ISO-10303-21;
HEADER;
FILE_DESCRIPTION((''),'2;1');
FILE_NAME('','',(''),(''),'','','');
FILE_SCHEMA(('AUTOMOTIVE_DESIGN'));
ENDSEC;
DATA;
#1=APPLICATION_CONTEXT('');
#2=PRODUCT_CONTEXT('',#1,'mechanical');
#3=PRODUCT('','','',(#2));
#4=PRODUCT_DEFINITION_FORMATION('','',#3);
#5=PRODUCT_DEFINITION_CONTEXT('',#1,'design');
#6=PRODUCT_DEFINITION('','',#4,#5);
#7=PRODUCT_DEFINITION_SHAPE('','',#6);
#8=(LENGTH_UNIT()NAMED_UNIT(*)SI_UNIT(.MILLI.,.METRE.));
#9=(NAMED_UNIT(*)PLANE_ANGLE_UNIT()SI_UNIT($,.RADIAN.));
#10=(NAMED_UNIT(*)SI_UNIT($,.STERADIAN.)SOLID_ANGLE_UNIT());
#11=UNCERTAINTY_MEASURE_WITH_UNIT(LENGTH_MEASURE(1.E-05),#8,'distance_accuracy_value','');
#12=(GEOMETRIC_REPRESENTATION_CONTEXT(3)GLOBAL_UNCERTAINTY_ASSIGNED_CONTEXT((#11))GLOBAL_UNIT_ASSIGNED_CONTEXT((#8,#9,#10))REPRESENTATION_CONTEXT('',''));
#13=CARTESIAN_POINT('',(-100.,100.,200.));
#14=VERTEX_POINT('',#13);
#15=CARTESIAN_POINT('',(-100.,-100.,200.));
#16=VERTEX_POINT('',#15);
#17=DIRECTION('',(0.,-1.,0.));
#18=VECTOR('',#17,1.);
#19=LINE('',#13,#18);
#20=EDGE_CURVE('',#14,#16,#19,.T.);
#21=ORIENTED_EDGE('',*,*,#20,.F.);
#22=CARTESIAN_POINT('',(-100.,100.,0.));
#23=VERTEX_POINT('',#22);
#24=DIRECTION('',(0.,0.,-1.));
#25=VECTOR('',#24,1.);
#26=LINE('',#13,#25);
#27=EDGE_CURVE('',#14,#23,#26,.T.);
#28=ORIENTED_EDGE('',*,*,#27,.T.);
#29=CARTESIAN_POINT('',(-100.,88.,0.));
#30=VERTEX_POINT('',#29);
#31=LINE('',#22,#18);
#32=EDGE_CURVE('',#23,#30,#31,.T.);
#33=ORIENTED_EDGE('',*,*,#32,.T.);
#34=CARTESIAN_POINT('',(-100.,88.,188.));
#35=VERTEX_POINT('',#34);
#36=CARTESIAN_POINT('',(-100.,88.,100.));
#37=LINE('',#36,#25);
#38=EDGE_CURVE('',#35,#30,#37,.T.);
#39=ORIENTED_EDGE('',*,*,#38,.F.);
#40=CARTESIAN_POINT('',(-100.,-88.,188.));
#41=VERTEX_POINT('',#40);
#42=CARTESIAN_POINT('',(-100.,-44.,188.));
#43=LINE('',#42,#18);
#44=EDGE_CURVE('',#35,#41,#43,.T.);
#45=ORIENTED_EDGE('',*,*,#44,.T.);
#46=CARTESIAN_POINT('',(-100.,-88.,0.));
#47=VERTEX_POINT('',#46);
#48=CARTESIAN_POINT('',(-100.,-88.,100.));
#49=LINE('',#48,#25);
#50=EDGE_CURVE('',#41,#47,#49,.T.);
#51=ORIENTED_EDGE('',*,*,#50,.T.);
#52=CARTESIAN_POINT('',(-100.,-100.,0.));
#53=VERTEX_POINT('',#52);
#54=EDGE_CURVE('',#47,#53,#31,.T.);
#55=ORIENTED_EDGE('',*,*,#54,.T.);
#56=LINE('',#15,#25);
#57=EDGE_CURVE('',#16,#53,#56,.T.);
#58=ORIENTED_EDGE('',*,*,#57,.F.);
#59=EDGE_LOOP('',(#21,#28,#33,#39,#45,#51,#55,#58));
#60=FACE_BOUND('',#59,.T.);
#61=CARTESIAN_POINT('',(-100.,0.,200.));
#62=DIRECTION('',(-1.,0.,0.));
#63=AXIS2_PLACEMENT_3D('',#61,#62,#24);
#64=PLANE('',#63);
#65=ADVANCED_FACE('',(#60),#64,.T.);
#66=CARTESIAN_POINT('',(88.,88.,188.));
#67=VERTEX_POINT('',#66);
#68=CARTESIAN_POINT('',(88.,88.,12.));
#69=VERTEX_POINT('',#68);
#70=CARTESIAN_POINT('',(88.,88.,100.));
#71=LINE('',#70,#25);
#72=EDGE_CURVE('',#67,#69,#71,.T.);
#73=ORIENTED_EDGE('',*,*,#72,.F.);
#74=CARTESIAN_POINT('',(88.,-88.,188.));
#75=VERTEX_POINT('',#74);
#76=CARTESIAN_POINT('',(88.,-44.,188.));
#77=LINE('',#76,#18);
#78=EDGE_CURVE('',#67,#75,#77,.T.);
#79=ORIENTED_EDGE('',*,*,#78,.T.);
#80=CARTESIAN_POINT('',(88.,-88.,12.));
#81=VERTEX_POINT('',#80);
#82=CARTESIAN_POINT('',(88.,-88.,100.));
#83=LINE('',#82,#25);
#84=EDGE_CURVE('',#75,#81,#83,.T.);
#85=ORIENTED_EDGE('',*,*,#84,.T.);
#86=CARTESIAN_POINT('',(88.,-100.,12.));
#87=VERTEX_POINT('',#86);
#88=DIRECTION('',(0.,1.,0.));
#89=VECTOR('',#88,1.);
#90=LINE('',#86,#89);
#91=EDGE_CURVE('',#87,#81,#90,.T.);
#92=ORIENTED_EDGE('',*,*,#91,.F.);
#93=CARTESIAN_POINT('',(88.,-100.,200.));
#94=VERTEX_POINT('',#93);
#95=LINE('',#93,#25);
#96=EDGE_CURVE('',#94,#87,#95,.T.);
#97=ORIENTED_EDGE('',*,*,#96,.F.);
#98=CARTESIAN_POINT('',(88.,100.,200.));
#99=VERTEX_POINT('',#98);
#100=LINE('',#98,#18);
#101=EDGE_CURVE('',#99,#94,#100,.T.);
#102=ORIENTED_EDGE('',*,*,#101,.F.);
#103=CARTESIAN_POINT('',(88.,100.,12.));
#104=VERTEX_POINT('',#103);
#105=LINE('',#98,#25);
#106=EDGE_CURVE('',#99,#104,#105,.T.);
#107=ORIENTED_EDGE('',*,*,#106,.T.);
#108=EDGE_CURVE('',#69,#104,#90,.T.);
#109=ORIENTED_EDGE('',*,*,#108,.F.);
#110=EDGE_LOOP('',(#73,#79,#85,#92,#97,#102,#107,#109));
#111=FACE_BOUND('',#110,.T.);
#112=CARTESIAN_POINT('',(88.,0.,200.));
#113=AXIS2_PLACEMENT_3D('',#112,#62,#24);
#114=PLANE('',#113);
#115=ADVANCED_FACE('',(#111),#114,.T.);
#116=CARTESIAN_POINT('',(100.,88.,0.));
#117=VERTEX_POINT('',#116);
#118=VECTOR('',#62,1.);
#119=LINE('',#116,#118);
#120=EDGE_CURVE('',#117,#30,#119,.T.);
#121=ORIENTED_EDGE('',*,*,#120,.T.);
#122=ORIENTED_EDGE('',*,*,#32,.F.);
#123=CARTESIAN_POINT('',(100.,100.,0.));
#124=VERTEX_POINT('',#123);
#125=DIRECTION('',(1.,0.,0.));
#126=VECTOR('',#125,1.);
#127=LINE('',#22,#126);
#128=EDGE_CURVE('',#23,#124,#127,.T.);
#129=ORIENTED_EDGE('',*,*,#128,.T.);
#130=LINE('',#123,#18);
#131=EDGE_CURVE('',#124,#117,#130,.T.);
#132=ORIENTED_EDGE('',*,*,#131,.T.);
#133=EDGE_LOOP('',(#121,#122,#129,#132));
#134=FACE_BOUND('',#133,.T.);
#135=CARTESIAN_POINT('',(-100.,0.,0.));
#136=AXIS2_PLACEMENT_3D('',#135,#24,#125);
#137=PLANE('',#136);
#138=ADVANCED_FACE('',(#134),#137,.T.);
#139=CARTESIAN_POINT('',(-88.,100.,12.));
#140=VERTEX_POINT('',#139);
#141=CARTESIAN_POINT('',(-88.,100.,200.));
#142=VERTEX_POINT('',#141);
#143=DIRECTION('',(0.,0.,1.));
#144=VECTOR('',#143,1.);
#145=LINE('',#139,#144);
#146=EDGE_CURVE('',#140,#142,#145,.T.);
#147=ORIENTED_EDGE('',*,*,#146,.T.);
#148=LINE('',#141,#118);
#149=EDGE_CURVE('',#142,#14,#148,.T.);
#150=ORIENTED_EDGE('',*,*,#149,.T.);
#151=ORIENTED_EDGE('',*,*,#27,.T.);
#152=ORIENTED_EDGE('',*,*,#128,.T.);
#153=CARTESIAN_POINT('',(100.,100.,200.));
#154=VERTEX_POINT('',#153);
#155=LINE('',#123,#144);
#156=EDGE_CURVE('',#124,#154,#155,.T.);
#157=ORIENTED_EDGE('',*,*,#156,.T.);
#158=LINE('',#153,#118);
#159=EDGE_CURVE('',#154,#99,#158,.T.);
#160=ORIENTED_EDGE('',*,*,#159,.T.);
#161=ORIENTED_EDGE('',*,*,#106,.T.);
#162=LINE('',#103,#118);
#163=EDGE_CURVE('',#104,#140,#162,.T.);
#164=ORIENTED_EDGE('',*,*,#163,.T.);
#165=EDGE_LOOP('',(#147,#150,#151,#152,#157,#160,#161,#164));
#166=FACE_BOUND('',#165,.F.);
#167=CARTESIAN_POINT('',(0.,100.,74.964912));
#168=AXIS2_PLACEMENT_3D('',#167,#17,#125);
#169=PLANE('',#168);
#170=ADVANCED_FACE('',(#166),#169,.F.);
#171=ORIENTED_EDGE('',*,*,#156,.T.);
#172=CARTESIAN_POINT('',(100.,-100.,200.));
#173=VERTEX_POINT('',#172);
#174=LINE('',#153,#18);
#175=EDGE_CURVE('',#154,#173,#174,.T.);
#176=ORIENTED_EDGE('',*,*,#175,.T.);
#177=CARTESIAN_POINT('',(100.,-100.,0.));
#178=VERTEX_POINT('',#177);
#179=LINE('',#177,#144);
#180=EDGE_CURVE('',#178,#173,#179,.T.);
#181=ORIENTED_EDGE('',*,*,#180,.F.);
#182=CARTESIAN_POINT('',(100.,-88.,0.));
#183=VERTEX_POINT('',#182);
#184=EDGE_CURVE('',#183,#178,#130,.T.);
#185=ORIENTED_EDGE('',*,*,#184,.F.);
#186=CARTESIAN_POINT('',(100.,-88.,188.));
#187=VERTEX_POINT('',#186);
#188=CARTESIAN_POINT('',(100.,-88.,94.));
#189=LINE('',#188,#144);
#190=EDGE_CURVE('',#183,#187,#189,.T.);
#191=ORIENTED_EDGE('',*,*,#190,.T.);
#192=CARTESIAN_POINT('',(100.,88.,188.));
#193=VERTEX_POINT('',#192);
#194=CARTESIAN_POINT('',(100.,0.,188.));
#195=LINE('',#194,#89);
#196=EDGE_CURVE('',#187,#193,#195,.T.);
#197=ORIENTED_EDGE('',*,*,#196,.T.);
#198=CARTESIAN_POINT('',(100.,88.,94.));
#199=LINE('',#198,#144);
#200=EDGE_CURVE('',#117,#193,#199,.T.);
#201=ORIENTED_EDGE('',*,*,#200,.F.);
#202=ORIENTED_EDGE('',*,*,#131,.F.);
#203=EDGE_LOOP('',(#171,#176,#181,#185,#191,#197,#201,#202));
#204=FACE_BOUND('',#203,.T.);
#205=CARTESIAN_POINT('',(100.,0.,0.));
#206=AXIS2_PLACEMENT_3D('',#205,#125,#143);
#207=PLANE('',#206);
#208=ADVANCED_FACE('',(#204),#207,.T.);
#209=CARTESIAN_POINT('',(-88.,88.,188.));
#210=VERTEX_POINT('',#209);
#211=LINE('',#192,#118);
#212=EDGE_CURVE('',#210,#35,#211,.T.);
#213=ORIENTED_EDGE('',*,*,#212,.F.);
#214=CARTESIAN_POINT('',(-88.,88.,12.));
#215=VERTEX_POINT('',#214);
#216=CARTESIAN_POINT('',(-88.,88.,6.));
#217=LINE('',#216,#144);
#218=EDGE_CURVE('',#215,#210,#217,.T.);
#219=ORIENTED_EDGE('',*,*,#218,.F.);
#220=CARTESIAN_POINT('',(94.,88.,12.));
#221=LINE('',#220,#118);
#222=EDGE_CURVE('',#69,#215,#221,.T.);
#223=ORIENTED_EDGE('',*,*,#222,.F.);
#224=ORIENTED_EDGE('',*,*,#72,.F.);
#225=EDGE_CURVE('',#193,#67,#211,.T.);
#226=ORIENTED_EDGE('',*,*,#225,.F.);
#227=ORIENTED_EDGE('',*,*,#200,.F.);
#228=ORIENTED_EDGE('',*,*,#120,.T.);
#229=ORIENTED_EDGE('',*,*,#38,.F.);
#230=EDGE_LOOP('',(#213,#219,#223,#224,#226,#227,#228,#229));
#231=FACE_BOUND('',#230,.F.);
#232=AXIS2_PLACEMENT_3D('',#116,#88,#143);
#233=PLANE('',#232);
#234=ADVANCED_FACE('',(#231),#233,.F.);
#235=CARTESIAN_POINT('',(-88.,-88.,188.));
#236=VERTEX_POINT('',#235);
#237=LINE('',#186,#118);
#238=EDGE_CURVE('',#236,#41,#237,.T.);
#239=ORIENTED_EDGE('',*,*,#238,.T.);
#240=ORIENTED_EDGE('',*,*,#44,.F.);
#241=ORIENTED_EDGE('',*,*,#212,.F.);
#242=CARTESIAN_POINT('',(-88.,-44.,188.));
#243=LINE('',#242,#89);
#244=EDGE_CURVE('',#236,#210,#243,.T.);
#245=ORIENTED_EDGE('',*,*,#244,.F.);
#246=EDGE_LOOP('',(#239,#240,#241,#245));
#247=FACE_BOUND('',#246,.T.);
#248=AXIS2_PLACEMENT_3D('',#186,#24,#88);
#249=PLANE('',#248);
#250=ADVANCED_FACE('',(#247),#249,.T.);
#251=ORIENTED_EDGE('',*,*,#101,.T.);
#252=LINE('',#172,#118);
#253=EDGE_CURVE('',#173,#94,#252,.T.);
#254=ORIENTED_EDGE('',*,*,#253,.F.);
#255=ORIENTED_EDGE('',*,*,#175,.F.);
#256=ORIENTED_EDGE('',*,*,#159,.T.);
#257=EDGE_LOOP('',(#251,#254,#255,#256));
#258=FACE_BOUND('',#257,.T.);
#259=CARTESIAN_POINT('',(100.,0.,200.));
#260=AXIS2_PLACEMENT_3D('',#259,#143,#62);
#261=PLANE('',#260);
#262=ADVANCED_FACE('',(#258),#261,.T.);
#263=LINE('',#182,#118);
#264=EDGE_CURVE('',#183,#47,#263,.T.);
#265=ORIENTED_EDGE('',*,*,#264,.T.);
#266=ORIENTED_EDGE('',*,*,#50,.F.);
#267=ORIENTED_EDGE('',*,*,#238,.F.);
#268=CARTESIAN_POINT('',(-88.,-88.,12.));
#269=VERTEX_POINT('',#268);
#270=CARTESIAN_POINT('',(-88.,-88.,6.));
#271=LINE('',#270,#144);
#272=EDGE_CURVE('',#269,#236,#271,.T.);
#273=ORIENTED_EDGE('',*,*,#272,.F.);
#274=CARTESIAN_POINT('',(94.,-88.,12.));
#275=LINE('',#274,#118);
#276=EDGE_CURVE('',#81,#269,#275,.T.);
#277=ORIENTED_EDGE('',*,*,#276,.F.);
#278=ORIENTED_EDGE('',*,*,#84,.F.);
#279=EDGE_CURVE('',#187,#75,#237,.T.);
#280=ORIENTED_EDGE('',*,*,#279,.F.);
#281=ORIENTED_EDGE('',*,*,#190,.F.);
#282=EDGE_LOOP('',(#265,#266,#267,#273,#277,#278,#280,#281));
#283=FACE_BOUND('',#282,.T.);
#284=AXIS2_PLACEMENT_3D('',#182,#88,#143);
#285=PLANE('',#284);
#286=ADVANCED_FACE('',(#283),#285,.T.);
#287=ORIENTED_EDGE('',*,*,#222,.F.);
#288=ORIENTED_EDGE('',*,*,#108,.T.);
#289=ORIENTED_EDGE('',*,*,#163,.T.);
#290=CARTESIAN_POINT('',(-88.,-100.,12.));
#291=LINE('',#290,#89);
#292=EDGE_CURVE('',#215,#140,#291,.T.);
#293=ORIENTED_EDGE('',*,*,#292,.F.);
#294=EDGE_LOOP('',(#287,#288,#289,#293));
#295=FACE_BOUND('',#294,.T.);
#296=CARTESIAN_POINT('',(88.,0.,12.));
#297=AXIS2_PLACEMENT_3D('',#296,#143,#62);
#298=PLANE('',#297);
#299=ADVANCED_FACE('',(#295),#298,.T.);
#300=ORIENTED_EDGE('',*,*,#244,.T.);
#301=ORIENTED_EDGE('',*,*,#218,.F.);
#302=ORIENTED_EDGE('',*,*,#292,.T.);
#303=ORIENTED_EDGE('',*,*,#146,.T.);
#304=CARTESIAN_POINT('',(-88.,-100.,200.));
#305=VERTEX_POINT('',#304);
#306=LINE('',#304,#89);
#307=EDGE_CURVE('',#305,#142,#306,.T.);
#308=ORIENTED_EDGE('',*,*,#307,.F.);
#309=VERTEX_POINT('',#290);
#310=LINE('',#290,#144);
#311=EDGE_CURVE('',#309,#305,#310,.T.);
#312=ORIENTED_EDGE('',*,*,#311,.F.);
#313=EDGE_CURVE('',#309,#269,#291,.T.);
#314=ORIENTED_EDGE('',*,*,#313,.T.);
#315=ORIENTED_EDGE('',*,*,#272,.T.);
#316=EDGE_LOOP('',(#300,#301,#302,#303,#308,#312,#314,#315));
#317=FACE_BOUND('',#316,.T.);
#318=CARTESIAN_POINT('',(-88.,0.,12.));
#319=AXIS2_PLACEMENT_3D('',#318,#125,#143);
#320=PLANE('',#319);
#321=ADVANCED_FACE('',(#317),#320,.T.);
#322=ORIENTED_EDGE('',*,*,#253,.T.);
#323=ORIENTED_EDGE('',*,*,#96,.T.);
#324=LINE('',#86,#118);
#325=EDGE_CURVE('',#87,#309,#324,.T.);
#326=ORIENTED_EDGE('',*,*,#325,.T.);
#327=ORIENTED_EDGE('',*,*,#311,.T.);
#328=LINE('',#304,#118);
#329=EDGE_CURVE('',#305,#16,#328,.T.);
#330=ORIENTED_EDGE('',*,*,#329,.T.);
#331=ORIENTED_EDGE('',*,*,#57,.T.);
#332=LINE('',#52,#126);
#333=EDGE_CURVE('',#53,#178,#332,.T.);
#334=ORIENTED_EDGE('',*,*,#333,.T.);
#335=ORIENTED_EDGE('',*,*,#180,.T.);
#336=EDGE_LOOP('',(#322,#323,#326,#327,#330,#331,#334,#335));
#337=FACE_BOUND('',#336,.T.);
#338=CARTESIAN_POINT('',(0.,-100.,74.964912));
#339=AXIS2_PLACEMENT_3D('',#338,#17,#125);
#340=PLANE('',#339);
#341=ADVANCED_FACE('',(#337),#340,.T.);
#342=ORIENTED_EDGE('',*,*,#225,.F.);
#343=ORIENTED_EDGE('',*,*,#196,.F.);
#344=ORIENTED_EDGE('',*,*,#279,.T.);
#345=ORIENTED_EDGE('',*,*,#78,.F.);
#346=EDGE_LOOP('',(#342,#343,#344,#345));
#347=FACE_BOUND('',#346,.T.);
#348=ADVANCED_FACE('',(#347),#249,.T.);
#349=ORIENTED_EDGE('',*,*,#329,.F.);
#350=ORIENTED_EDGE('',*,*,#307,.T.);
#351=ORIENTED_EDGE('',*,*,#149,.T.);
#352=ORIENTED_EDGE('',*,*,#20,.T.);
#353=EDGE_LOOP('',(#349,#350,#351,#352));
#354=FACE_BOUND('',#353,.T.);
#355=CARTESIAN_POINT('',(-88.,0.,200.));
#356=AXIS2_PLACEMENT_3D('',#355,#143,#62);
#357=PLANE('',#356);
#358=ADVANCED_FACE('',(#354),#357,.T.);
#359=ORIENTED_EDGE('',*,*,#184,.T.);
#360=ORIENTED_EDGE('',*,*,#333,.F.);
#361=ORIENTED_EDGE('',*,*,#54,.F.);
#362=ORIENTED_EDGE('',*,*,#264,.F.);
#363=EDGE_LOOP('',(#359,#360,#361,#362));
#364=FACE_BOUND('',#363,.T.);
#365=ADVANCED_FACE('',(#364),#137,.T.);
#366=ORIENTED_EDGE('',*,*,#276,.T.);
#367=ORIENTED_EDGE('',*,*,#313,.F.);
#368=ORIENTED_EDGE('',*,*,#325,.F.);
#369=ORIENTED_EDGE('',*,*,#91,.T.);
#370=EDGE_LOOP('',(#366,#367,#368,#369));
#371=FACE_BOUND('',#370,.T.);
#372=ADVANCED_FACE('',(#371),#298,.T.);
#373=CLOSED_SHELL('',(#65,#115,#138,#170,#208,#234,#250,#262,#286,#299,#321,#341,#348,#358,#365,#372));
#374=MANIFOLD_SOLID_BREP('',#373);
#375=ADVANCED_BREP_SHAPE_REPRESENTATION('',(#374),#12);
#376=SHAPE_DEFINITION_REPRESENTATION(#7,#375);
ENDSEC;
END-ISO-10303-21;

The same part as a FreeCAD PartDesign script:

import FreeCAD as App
import Part
import Sketcher

V = App.Vector
Q = App.Units.Quantity


def add_polygon(sketch, points):
    """Adds a closed chain of lines whose ends are joined by coincident constraints."""
    first, n = sketch.GeometryCount, len(points)
    for a, b in zip(points, points[1:] + points[:1]):
        sketch.addGeometry(Part.LineSegment(App.Vector(*a, 0), App.Vector(*b, 0)), False)
    for i in range(n):
        sketch.addConstraint(Sketcher.Constraint("Coincident", first + i, 2, first + (i + 1) % n, 1))

doc = App.newDocument("Part")
body = doc.addObject("PartDesign::Body", "Body")

sketch1 = body.newObject("Sketcher::SketchObject", "Sketch")
sketch1.AttachmentSupport = (doc.getObject("XZ_Plane"), [""])
sketch1.MapMode = "FlatFace"
add_polygon(sketch1, [(-88, 200), (-100, 200), (-100, 0), (100, 0), (100, 200), (88, 200), (88, 12), (-88, 12)])
sketch1.addConstraint(Sketcher.Constraint("Horizontal", 0))
sketch1.addConstraint(Sketcher.Constraint("Vertical", 1))
sketch1.addConstraint(Sketcher.Constraint("Horizontal", 2))
sketch1.addConstraint(Sketcher.Constraint("Vertical", 3))
sketch1.addConstraint(Sketcher.Constraint("Horizontal", 4))
sketch1.addConstraint(Sketcher.Constraint("Vertical", 5))
sketch1.addConstraint(Sketcher.Constraint("Horizontal", 6))
sketch1.addConstraint(Sketcher.Constraint("Vertical", 7))
sketch1.addConstraint(Sketcher.Constraint("Symmetric", 1, 2, 2, 2, -1, 1))
sketch1.addConstraint(Sketcher.Constraint("Symmetric", 4, 2, 7, 2, -2))
sketch1.addConstraint(Sketcher.Constraint("Equal", 2, 1))
sketch1.addConstraint(Sketcher.Constraint("DistanceX", 0, 2, 0, 1, Q("12 mm")))
sketch1.addConstraint(Sketcher.Constraint("DistanceX", 2, 1, 2, 2, Q("200 mm")))
sketch1.addConstraint(Sketcher.Constraint("DistanceY", 5, 2, 5, 1, Q("188 mm")))
pad1 = body.newObject("PartDesign::Pad", "Pad")
pad1.Profile = sketch1
pad1.Length = 200
pad1.Midplane = True

sketch2 = body.newObject("Sketcher::SketchObject", "Sketch001")
sketch2.AttachmentSupport = (doc.getObject("YZ_Plane"), [""])
sketch2.MapMode = "FlatFace"
sketch2.AttachmentOffset = App.Placement(V(0, 0, 100), App.Rotation())
add_polygon(sketch2, [(-88, 188), (-88, 0), (88, 0), (88, 188)])
sketch2.addConstraint(Sketcher.Constraint("Vertical", 0))
sketch2.addConstraint(Sketcher.Constraint("Horizontal", 1))
sketch2.addConstraint(Sketcher.Constraint("Vertical", 2))
sketch2.addConstraint(Sketcher.Constraint("Horizontal", 3))
sketch2.addConstraint(Sketcher.Constraint("Symmetric", 0, 2, 1, 2, -1, 1))
sketch2.addConstraint(Sketcher.Constraint("DistanceX", 1, 1, 1, 2, Q("176 mm")))
sketch2.addConstraint(Sketcher.Constraint("DistanceY", 0, 2, 0, 1, Q("188 mm")))
pocket1 = body.newObject("PartDesign::Pocket", "Pocket")
pocket1.Profile = sketch2
pocket1.Type = "ThroughAll"

doc.recompute()
